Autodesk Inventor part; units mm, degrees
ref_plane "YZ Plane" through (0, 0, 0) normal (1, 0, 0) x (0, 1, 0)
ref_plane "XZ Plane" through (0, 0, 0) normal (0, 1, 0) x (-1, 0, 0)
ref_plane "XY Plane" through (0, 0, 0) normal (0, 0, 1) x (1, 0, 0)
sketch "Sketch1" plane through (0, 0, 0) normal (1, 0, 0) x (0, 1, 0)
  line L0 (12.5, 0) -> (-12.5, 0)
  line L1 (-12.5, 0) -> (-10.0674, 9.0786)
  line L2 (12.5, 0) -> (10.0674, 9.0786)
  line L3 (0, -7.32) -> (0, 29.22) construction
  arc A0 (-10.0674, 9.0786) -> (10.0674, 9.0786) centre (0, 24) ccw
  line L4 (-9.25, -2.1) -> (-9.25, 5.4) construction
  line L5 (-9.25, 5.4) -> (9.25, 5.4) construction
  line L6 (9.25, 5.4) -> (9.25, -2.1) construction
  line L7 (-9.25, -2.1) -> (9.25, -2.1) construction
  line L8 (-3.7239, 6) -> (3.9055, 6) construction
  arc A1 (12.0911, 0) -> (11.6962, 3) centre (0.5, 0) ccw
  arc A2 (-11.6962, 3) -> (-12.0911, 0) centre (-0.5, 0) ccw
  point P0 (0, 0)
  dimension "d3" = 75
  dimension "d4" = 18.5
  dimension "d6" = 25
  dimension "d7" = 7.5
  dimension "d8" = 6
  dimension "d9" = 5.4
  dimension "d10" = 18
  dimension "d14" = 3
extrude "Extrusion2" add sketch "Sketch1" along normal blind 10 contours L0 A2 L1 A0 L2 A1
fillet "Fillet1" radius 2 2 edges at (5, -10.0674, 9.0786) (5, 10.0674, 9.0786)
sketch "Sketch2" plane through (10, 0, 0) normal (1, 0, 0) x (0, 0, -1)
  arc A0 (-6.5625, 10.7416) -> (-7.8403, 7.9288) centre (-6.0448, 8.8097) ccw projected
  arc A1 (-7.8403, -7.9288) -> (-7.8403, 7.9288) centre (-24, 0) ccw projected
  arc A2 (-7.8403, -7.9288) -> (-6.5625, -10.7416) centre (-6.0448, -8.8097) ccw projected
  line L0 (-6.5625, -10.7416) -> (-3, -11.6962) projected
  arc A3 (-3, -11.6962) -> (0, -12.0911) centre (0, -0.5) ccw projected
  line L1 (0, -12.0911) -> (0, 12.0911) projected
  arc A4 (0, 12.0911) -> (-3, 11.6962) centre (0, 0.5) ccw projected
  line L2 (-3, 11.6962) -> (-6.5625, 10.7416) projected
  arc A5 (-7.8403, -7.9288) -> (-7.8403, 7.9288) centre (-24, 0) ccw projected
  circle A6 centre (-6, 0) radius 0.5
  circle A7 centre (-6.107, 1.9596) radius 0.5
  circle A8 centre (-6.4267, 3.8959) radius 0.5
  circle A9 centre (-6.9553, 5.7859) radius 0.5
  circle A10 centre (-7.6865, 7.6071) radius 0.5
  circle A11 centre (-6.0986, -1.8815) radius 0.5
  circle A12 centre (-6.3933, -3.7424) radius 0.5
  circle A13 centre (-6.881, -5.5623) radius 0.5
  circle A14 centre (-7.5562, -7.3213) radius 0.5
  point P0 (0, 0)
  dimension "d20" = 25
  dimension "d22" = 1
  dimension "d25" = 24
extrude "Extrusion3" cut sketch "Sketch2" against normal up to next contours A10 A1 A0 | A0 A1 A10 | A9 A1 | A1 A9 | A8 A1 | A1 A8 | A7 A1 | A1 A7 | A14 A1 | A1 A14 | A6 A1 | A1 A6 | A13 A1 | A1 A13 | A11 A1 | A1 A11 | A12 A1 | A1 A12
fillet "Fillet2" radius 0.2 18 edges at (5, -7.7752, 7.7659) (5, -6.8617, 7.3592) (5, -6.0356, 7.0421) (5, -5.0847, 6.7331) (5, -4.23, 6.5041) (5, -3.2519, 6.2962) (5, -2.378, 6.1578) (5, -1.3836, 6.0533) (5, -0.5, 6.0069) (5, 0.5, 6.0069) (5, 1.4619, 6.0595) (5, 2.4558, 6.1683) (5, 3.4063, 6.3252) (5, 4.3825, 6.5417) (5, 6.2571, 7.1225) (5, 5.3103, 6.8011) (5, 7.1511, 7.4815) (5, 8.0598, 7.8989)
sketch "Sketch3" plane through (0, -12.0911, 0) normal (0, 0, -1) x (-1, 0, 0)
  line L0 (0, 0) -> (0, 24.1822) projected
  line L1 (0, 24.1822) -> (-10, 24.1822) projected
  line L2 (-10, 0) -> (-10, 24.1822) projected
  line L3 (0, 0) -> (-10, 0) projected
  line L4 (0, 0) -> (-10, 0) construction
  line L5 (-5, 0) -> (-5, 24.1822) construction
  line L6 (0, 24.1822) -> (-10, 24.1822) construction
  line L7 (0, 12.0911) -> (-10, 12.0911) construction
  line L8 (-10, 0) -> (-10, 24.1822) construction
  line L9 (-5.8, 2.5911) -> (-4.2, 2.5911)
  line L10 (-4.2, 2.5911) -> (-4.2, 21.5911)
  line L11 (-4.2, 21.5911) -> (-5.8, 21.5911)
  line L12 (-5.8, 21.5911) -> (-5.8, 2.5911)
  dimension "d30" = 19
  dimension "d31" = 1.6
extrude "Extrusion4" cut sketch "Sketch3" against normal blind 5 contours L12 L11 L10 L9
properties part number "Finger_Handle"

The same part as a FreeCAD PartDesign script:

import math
import FreeCAD as App
import Part
import Sketcher
Q = App.Units.Quantity


def edges_at(feature, points):
    """Names of the edges that pass closest to the given points."""
    edges = feature.Shape.Edges
    near = lambda p: min(range(len(edges)), key=lambda i: edges[i].distToShape(Part.Vertex(*p))[0])
    return sorted({f"Edge{near(p) + 1}" for p in points})

doc = App.newDocument("Part")
params = doc.addObject("Spreadsheet::Sheet", "Params")
for row, (alias, value) in enumerate([
    ("sketch1_radius", "18 mm"),
    ("pad1_length", "10 mm"),
    ("fillet_radius", "2 mm"),
    ("sketch2_diameter", "1 mm"),
    ("pocket1_length", "10 mm"),
    ("fillet2_radius", "0.2 mm"),
    ("sketch3_height", "19 mm"),
    ("sketch3_width", "1.6 mm"),
    ("pocket2_length", "5 mm"),
], start=1):
    params.set(f"A{row}", alias)
    params.set(f"B{row}", "=" + value)
    params.setAlias(f"B{row}", alias)

body = doc.addObject("PartDesign::Body", "Body")

# Sketch on YZ plane
sketch1 = body.newObject("Sketcher::SketchObject", "Sketch")
sketch1.AttachmentSupport = (doc.getObject("YZ_Plane"), [""])
sketch1.MapMode = "FlatFace"
sketch1.addGeometry([
    Part.LineSegment(App.Vector(-12.0911, 0, 0), App.Vector(12.0911, 0, 0)),  # 0
    Part.ArcOfCircle(Part.Circle(App.Vector(0.496734, -0.000214, 0), App.Vector(0, 0, 1), 11.594366), math.radians(0.001058), math.radians(14.996783)),  # 1
    Part.LineSegment(App.Vector(11.696157, 2.999988, 0), App.Vector(10.0674, 9.0786, 0)),  # 2
    Part.ArcOfCircle(Part.Circle(App.Vector(0, 24, 0), App.Vector(0, 0, 1), 18.00002), math.radians(-124.007359), math.radians(-55.992641)),  # 3
    Part.LineSegment(App.Vector(-10.0674, 9.0786, 0), App.Vector(-11.696157, 2.999988, 0)),  # 4
    Part.ArcOfCircle(Part.Circle(App.Vector(-0.503209, 0.000638, 0), App.Vector(0, 0, 1), 11.587891), math.radians(164.999003), math.radians(180.003156)),  # 5
], False)
sketch1.addConstraint([
    Sketcher.Constraint("Coincident", 0, 2, 1, 1),
    Sketcher.Constraint("Coincident", 1, 2, 2, 1),
    Sketcher.Constraint("Coincident", 2, 2, 3, 2),
    Sketcher.Constraint("Coincident", 3, 1, 4, 1),
    Sketcher.Constraint("Coincident", 4, 2, 5, 1),
    Sketcher.Constraint("Coincident", 5, 2, 0, 1),
    Sketcher.Constraint("Horizontal", 0),
    Sketcher.Constraint("PointOnObject", 3, 3, -2),
    Sketcher.Constraint("PointOnObject", 0, 2, -1),
    Sketcher.Constraint("Radius", 3, Q("18 mm")),
    Sketcher.Constraint("DistanceY", -1, 1, 1, 2, Q("3 mm")),
    Sketcher.Constraint("DistanceY", -1, 1, 4, 2, Q("3 mm")),
    Sketcher.Constraint("DistanceY", -1, 1, 3, 3, Q("24 mm")),
    Sketcher.Constraint("Radius", 5, Q("11.588 mm")),
    Sketcher.Constraint("DistanceX", 5, 3, 1, 3, Q("1 mm")),
    Sketcher.Constraint("Radius", 1, Q("11.5944 mm")),
    Sketcher.Constraint("DistanceY", 1, 3, 1, 2, Q("3.0002 mm")),
    Sketcher.Constraint("Distance", 2, Q("6.293 mm")),
    Sketcher.Constraint("Distance", 4, Q("6.293 mm")),
    Sketcher.Constraint("DistanceX", -1, 1, 0, 2, Q("12.091 mm")),
    Sketcher.Constraint("DistanceY", 5, 3, 2, 2, Q("9.078 mm")),
])
sketch1.setExpression("Constraints[9]", "Params.sketch1_radius")
pad1 = body.newObject("PartDesign::Pad", "Pad")
pad1.Profile = sketch1
pad1.setExpression("Length", "Params.pad1_length")
doc.recompute()

fillet = body.newObject("PartDesign::Fillet", "Fillet")
fillet.Base = (pad1, edges_at(pad1, [(5, -10.067, 9.079), (5, 10.067, 9.079)]))
fillet.setExpression("Radius", "Params.fillet_radius")

# Sketch on YZ plane
sketch2 = body.newObject("Sketcher::SketchObject", "Sketch001")
sketch2.AttachmentSupport = (doc.getObject("YZ_Plane"), [""])
sketch2.MapMode = "FlatFace"
sketch2.AttachmentOffset = App.Placement(App.Vector(0, 0, 10), App.Rotation())
sketch2.addGeometry([
    Part.Circle(App.Vector(7.6, 7.7, 0), App.Vector(0, 0, 1), 0.5),  # 0
    Part.Circle(App.Vector(5.8, 7, 0), App.Vector(0, 0, 1), 0.5),  # 1
    Part.Circle(App.Vector(3.9, 6.4, 0), App.Vector(0, 0, 1), 0.5),  # 2
    Part.Circle(App.Vector(2, 6.1, 0), App.Vector(0, 0, 1), 0.5),  # 3
    Part.Circle(App.Vector(-7.3, 7.6, 0), App.Vector(0, 0, 1), 0.5),  # 4
    Part.Circle(App.Vector(0, 6, 0), App.Vector(0, 0, 1), 0.5),  # 5
    Part.Circle(App.Vector(-5.6, 6.9, 0), App.Vector(0, 0, 1), 0.5),  # 6
    Part.Circle(App.Vector(-1.9, 6.1, 0), App.Vector(0, 0, 1), 0.5),  # 7
    Part.Circle(App.Vector(-3.7, 6.4, 0), App.Vector(0, 0, 1), 0.5),  # 8
], False)
sketch2.addConstraint([
    Sketcher.Constraint("Equal", 0, 1),
    Sketcher.Constraint("Equal", 1, 2),
    Sketcher.Constraint("Equal", 2, 3),
    Sketcher.Constraint("Equal", 3, 4),
    Sketcher.Constraint("Equal", 4, 5),
    Sketcher.Constraint("Equal", 5, 6),
    Sketcher.Constraint("Equal", 6, 7),
    Sketcher.Constraint("Equal", 7, 8),
    Sketcher.Constraint("PointOnObject", 5, 3, -2),
    Sketcher.Constraint("Diameter", 0, Q("1 mm")),
    Sketcher.Constraint("DistanceY", -1, 1, 5, 3, Q("6 mm")),
    Sketcher.Constraint("DistanceX", 2, 3, 1, 3, Q("1.89 mm")),
    Sketcher.Constraint("DistanceX", 6, 3, 8, 3, Q("1.82 mm")),
    Sketcher.Constraint("DistanceX", -1, 1, 0, 3, Q("7.607 mm")),
    Sketcher.Constraint("DistanceX", -1, 1, 1, 3, Q("5.786 mm")),
    Sketcher.Constraint("DistanceY", -1, 1, 3, 3, Q("6.107 mm")),
    Sketcher.Constraint("DistanceY", -1, 1, 6, 3, Q("6.881 mm")),
    Sketcher.Constraint("DistanceX", 4, 3, 3, 3, Q("9.281 mm")),
    Sketcher.Constraint("DistanceY", 1, 3, 4, 3, Q("0.601 mm")),
    Sketcher.Constraint("DistanceX", 4, 3, 6, 3, Q("1.759 mm")),
    Sketcher.Constraint("DistanceX", 7, 3, 3, 3, Q("3.841 mm")),
    Sketcher.Constraint("DistanceY", 7, 3, 2, 3, Q("0.328 mm")),
    Sketcher.Constraint("DistanceY", 8, 3, 4, 3, Q("1.163 mm")),
    Sketcher.Constraint("DistanceY", -1, 1, 0, 3, Q("7.6865 mm")),
    Sketcher.Constraint("DistanceY", -1, 1, 1, 3, Q("6.9553 mm")),
    Sketcher.Constraint("DistanceY", -1, 1, 2, 3, Q("6.4267 mm")),
    Sketcher.Constraint("DistanceX", -1, 1, 3, 3, Q("1.9596 mm")),
])
sketch2.setExpression("Constraints[9]", "Params.sketch2_diameter")
pocket1 = body.newObject("PartDesign::Pocket", "Pocket")
pocket1.Profile = sketch2
pocket1.setExpression("Length", "Params.pocket1_length")
doc.recompute()

fillet2 = body.newObject("PartDesign::Fillet", "Fillet001")
fillet2.Base = (pocket1, edges_at(pocket1, [
    (5, -7.775, 7.766),
    (5, -6.862, 7.359),
    (5, -6.036, 7.042),
    (5, -5.085, 6.733),
    (5, -4.23, 6.504),
    (5, -3.252, 6.296),
    (5, -2.378, 6.158),
    (5, -1.384, 6.053),
    (5, -0.5, 6.007),
    (5, 0.5, 6.007),
    (5, 1.462, 6.059),
    (5, 2.456, 6.168),
    (5, 3.406, 6.325),
    (5, 4.383, 6.542),
    (5, 6.257, 7.122),
    (5, 5.31, 6.801),
    (5, 7.151, 7.481),
    (5, 8.06, 7.899),
]))
fillet2.setExpression("Radius", "Params.fillet2_radius")

# Sketch on XY plane
sketch3 = body.newObject("Sketcher::SketchObject", "Sketch002")
sketch3.AttachmentSupport = (doc.getObject("XY_Plane"), [""])
sketch3.MapMode = "FlatFace"
sketch3.addGeometry([
    Part.LineSegment(App.Vector(5.8, 9.5, 0), App.Vector(5.8, -9.5, 0)),
    Part.LineSegment(App.Vector(5.8, -9.5, 0), App.Vector(4.2, -9.5, 0)),
    Part.LineSegment(App.Vector(4.2, -9.5, 0), App.Vector(4.2, 9.5, 0)),
    Part.LineSegment(App.Vector(4.2, 9.5, 0), App.Vector(5.8, 9.5, 0)),
], False)
sketch3.addConstraint([
    Sketcher.Constraint("Coincident", 0, 2, 1, 1),
    Sketcher.Constraint("Coincident", 1, 2, 2, 1),
    Sketcher.Constraint("Coincident", 2, 2, 3, 1),
    Sketcher.Constraint("Coincident", 3, 2, 0, 1),
    Sketcher.Constraint("Vertical", 0),
    Sketcher.Constraint("Horizontal", 1),
    Sketcher.Constraint("Vertical", 2),
    Sketcher.Constraint("Horizontal", 3),
    Sketcher.Constraint("DistanceY", 0, 2, 0, 1, Q("19 mm")),
    Sketcher.Constraint("DistanceX", 1, 2, 1, 1, Q("1.6 mm")),
    Sketcher.Constraint("DistanceX", -1, 1, 0, 2, Q("5.8 mm")),
    Sketcher.Constraint("DistanceY", 0, 2, -1, 1, Q("9.5 mm")),
])
sketch3.setExpression("Constraints[8]", "Params.sketch3_height")
sketch3.setExpression("Constraints[9]", "Params.sketch3_width")
pocket2 = body.newObject("PartDesign::Pocket", "Pocket001")
pocket2.Profile = sketch3
pocket2.setExpression("Length", "Params.pocket2_length")
pocket2.Reversed = True

doc.recompute()
